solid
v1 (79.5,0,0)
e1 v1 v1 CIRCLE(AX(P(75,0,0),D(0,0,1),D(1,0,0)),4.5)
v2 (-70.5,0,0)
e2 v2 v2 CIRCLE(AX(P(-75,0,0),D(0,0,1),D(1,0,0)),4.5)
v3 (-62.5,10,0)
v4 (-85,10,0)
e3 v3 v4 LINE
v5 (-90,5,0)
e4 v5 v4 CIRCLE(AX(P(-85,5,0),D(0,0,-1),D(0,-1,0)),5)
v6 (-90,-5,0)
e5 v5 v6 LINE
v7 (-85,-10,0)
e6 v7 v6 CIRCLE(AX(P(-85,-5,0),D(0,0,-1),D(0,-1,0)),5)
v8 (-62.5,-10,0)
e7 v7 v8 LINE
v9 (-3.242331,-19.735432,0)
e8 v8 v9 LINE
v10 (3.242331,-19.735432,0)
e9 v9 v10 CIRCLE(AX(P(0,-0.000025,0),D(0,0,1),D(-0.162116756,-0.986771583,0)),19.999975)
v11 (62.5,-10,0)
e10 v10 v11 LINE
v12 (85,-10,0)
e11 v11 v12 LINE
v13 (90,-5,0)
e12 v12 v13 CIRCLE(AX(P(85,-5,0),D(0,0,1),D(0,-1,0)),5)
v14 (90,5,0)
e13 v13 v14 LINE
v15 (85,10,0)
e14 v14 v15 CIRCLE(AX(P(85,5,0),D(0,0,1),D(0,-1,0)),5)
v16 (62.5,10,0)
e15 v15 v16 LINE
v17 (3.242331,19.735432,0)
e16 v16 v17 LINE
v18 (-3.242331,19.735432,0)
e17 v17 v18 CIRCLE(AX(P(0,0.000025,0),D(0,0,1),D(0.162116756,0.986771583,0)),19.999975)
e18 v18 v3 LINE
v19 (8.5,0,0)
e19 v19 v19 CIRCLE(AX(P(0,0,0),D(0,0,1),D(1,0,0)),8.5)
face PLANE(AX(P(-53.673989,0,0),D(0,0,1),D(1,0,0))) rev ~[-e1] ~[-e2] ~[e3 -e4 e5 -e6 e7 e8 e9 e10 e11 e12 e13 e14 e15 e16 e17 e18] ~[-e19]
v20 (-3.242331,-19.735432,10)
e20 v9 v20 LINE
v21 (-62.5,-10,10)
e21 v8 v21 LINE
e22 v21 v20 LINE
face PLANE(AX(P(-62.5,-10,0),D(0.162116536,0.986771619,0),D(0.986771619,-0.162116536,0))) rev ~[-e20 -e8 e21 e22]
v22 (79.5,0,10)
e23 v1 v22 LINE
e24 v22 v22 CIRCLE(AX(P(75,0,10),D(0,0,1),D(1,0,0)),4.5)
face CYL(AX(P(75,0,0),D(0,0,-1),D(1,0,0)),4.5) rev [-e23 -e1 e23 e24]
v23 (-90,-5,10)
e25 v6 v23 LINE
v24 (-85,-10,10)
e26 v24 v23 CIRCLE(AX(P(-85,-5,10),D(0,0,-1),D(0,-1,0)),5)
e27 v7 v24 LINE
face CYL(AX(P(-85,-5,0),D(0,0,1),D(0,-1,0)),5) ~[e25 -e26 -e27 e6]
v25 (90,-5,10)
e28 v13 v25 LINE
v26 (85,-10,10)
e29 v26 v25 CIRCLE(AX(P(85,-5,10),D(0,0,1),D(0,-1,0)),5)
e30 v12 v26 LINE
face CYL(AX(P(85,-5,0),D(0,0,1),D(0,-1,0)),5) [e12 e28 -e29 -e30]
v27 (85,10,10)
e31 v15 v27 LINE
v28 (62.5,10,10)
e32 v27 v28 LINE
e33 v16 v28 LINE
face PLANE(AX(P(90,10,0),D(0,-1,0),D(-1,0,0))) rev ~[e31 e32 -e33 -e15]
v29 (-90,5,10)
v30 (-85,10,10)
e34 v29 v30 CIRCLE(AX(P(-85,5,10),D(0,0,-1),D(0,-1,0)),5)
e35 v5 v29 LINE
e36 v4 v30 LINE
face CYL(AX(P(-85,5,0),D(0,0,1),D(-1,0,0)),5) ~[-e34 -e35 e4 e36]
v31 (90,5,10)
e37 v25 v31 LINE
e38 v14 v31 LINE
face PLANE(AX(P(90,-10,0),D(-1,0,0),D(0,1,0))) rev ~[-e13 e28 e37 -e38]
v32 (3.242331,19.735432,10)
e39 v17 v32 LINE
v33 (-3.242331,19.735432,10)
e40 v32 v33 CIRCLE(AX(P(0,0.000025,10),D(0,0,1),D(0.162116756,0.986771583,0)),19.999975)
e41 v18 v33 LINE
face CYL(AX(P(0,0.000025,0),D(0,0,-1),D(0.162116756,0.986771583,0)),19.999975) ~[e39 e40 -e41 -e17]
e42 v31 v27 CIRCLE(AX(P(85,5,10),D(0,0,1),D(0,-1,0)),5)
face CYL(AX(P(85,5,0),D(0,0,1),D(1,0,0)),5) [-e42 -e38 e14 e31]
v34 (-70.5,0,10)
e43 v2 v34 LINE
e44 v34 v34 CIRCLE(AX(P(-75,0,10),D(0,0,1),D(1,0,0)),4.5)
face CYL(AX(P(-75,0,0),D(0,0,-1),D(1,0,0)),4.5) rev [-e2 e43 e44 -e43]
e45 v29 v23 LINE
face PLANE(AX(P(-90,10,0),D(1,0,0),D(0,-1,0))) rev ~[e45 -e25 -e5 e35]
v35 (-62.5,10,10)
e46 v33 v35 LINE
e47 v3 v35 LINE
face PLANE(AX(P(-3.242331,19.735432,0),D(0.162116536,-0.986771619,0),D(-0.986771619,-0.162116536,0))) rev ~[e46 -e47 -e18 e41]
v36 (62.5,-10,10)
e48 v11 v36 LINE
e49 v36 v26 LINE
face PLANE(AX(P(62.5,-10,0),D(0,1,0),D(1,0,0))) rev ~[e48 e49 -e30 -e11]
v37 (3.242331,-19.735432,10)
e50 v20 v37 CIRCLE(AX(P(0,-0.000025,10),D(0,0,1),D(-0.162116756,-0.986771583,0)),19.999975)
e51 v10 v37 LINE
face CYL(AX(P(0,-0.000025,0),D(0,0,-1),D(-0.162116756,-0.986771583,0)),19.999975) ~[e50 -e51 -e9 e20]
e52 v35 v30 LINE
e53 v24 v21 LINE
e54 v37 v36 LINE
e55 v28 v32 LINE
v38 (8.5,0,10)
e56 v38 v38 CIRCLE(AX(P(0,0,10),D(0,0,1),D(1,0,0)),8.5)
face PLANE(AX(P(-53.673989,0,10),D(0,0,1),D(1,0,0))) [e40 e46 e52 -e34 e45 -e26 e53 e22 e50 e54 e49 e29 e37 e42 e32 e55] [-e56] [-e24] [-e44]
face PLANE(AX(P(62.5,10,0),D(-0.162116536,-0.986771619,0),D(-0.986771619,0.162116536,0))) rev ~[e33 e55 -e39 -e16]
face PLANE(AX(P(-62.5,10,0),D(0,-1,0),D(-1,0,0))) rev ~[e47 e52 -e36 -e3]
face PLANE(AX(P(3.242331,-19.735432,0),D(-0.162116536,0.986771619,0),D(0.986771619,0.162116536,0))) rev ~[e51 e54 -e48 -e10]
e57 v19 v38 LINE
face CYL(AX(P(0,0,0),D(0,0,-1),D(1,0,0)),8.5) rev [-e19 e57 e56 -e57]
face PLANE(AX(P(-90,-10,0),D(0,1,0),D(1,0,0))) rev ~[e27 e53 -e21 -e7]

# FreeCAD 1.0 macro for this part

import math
import FreeCAD as App
import Part
import Sketcher

V = App.Vector


def edges_at(feature, points):
    """Names of the edges that pass closest to the given points."""
    edges = feature.Shape.Edges
    near = lambda p: min(range(len(edges)), key=lambda i: edges[i].distToShape(Part.Vertex(*p))[0])
    return sorted({f"Edge{near(p) + 1}" for p in points})

doc = App.newDocument("Part")
body = doc.addObject("PartDesign::Body", "Body")

# Sketch on XY plane
sketch1 = body.newObject("Sketcher::SketchObject", "Sketch")
sketch1.AttachmentSupport = (doc.getObject("XY_Plane"), [""])
sketch1.MapMode = "FlatFace"
sketch1.addGeometry(Part.ArcOfCircle(Part.Circle(V(0, -0.000025, 0), V(0, 0, 1), 19.999975), math.radians(-99.329782), math.radians(-80.670218)), False)
sketch1.addGeometry(Part.LineSegment(V(3.242331, -19.735432, 0), V(62.5, -10, 0)), False)
sketch1.addGeometry(Part.LineSegment(V(62.5, -10, 0), V(90, -10, 0)), False)
sketch1.addGeometry(Part.LineSegment(V(90, -10, 0), V(90, 10, 0)), False)
sketch1.addGeometry(Part.LineSegment(V(90, 10, 0), V(62.5, 10, 0)), False)
sketch1.addGeometry(Part.LineSegment(V(62.5, 10, 0), V(3.242331, 19.735432, 0)), False)
sketch1.addGeometry(Part.ArcOfCircle(Part.Circle(V(0, 0.000025, 0), V(0, 0, 1), 19.999975), math.radians(80.670218), math.radians(99.329782)), False)
sketch1.addGeometry(Part.LineSegment(V(-3.242331, 19.735432, 0), V(-62.5, 10, 0)), False)
sketch1.addGeometry(Part.LineSegment(V(-62.5, 10, 0), V(-90, 10, 0)), False)
sketch1.addGeometry(Part.LineSegment(V(-90, 10, 0), V(-90, -10, 0)), False)
sketch1.addGeometry(Part.LineSegment(V(-90, -10, 0), V(-62.5, -10, 0)), False)
sketch1.addGeometry(Part.LineSegment(V(-62.5, -10, 0), V(-3.242331, -19.735432, 0)), False)
sketch1.addGeometry(Part.Circle(V(-75, 0, 0), V(0, 0, 1), 4.5), False)
sketch1.addGeometry(Part.Circle(V(0, 0, 0), V(0, 0, 1), 8.5), False)
sketch1.addGeometry(Part.Circle(V(75, 0, 0), V(0, 0, 1), 4.5), False)
sketch1.addConstraint(Sketcher.Constraint("Coincident", 0, 2, 1, 1))
sketch1.addConstraint(Sketcher.Constraint("Coincident", 1, 2, 2, 1))
sketch1.addConstraint(Sketcher.Constraint("Coincident", 2, 2, 3, 1))
sketch1.addConstraint(Sketcher.Constraint("Coincident", 3, 2, 4, 1))
sketch1.addConstraint(Sketcher.Constraint("Coincident", 4, 2, 5, 1))
sketch1.addConstraint(Sketcher.Constraint("Coincident", 5, 2, 6, 1))
sketch1.addConstraint(Sketcher.Constraint("Coincident", 6, 2, 7, 1))
sketch1.addConstraint(Sketcher.Constraint("Coincident", 7, 2, 8, 1))
sketch1.addConstraint(Sketcher.Constraint("Coincident", 8, 2, 9, 1))
sketch1.addConstraint(Sketcher.Constraint("Coincident", 9, 2, 10, 1))
sketch1.addConstraint(Sketcher.Constraint("Coincident", 10, 2, 11, 1))
sketch1.addConstraint(Sketcher.Constraint("Coincident", 11, 2, 0, 1))
sketch1.addConstraint(Sketcher.Constraint("Horizontal", 2))
sketch1.addConstraint(Sketcher.Constraint("Vertical", 3))
sketch1.addConstraint(Sketcher.Constraint("Horizontal", 4))
sketch1.addConstraint(Sketcher.Constraint("Horizontal", 8))
sketch1.addConstraint(Sketcher.Constraint("Vertical", 9))
sketch1.addConstraint(Sketcher.Constraint("Horizontal", 10))
sketch1.addConstraint(Sketcher.Constraint("Coincident", 13, 3, -1, 1))
sketch1.addConstraint(Sketcher.Constraint("PointOnObject", 0, 3, -2))
sketch1.addConstraint(Sketcher.Constraint("PointOnObject", 6, 3, -2))
sketch1.addConstraint(Sketcher.Constraint("PointOnObject", 12, 3, -1))
sketch1.addConstraint(Sketcher.Constraint("PointOnObject", 14, 3, -1))
sketch1.addConstraint(Sketcher.Constraint("Diameter", 12, 9.0))
sketch1.addConstraint(Sketcher.Constraint("Diameter", 13, 17.0))
sketch1.addConstraint(Sketcher.Constraint("Diameter", 14, 9.0))
sketch1.addConstraint(Sketcher.Constraint("DistanceY", 3, 1, 3, 2, 20.0))
sketch1.addConstraint(Sketcher.Constraint("DistanceY", 9, 2, 9, 1, 20.0))
sketch1.addConstraint(Sketcher.Constraint("DistanceX", 2, 1, 2, 2, 27.5))
sketch1.addConstraint(Sketcher.Constraint("DistanceX", 4, 2, 4, 1, 27.5))
sketch1.addConstraint(Sketcher.Constraint("DistanceX", 8, 2, 8, 1, 27.5))
sketch1.addConstraint(Sketcher.Constraint("DistanceX", 10, 1, 10, 2, 27.5))
sketch1.addConstraint(Sketcher.Constraint("DistanceX", 12, 3, -1, 1, 75.0))
sketch1.addConstraint(Sketcher.Constraint("DistanceX", -1, 1, 14, 3, 75.0))
sketch1.addConstraint(Sketcher.Constraint("DistanceY", 1, 2, -1, 1, 10.0))
sketch1.addConstraint(Sketcher.Constraint("DistanceX", -1, 1, 2, 2, 90.0))
sketch1.addConstraint(Sketcher.Constraint("DistanceY", -1, 1, 7, 2, 10.0))
sketch1.addConstraint(Sketcher.Constraint("DistanceX", 8, 2, -1, 1, 90.0))
sketch1.addConstraint(Sketcher.Constraint("Radius", 0, 19.999975))
sketch1.addConstraint(Sketcher.Constraint("Radius", 6, 19.999975))
sketch1.addConstraint(Sketcher.Constraint("Distance", 1, 60.052061))
sketch1.addConstraint(Sketcher.Constraint("Distance", 5, 60.052061))
sketch1.addConstraint(Sketcher.Constraint("Distance", 7, 60.052061))
sketch1.addConstraint(Sketcher.Constraint("Distance", 11, 60.052061))
sketch1.addConstraint(Sketcher.Constraint("DistanceX", -1, 1, 0, 2, 3.242331))
sketch1.addConstraint(Sketcher.Constraint("DistanceX", -1, 1, 5, 2, 3.242331))
pad1 = body.newObject("PartDesign::Pad", "Pad")
pad1.Profile = sketch1
pad1.Length = 10
doc.recompute()

fillet = body.newObject("PartDesign::Fillet", "Fillet")
fillet.Base = (pad1, edges_at(pad1, [
    (-90, -10, 5),
    (-90, 10, 5),
    (90, -10, 5),
    (90, 10, 5),
]))
fillet.Radius = 5

doc.recompute()
